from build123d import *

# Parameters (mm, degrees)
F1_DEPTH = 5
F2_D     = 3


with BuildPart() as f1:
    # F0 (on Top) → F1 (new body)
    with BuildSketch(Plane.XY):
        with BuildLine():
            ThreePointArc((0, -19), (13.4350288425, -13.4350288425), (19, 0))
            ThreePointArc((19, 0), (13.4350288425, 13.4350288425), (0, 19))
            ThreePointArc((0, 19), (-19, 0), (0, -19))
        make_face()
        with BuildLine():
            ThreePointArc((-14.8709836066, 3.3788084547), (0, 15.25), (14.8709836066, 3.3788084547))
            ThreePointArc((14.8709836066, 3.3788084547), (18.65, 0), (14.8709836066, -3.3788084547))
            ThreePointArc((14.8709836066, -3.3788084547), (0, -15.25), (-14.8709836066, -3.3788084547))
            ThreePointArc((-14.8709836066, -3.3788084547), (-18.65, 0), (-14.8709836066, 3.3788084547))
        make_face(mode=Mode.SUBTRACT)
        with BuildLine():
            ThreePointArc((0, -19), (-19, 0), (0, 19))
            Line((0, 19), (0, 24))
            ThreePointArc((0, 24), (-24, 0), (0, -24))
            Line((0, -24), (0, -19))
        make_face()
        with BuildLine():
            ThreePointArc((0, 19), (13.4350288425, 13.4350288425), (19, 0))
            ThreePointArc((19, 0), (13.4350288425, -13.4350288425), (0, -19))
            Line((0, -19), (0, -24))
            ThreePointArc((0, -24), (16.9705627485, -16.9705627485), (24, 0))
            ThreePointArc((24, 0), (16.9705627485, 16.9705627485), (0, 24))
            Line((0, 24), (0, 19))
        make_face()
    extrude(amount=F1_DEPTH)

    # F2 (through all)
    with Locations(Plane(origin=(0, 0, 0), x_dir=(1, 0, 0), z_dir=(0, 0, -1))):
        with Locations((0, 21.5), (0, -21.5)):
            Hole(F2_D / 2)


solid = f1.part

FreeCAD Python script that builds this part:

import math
import FreeCAD as App
import Part
import Sketcher

V = App.Vector

doc = App.newDocument("Part")
params = doc.addObject("Spreadsheet::Sheet", "Params")
for row, (alias, value) in enumerate([
    ("sketch1_radius", "24 mm"),
    ("sketch1_radius2", "3.4 mm"),
    ("sketch1_radius3", "15.25 mm"),
    ("pad1_length", "5 mm"),
    ("sketch2_diameter", "3 mm"),
    ("hole_diameter", "3 mm"),
], start=1):
    params.set(f"A{row}", alias)
    params.set(f"B{row}", "=" + value)
    params.setAlias(f"B{row}", alias)

body = doc.addObject("PartDesign::Body", "Body")

sketch1 = body.newObject("Sketcher::SketchObject", "Sketch")
sketch1.AttachmentSupport = (doc.getObject("XY_Plane"), [""])
sketch1.MapMode = "FlatFace"
sketch1.addGeometry(Part.ArcOfCircle(Part.Circle(V(0, 0, 0), V(0, 0, 1), 24), math.radians(90), math.radians(270)), False)
sketch1.addGeometry(Part.ArcOfCircle(Part.Circle(V(0, 0, 0), V(0, 0, 1), 24), math.radians(-90), math.radians(0)), False)
sketch1.addGeometry(Part.ArcOfCircle(Part.Circle(V(0, 0, 0), V(0, 0, 1), 24), math.radians(0), math.radians(90)), False)
sketch1.addGeometry(Part.ArcOfCircle(Part.Circle(V(-15.2, 0, 0), V(0, 0, 1), 3.4), math.radians(84), math.radians(276)), False)
sketch1.addGeometry(Part.ArcOfCircle(Part.Circle(V(0, 0, 0), V(0, 0, 1), 15.2), math.radians(13), math.radians(167)), False)
sketch1.addGeometry(Part.ArcOfCircle(Part.Circle(V(15.2, 0, 0), V(0, 0, 1), 3.4), math.radians(-96), math.radians(96)), False)
sketch1.addGeometry(Part.ArcOfCircle(Part.Circle(V(0, 0, 0), V(0, 0, 1), 15.2), math.radians(-167), math.radians(-13)), False)
sketch1.addConstraint(Sketcher.Constraint("Tangent", 0, 2, 1, 1))
sketch1.addConstraint(Sketcher.Constraint("Tangent", 1, 2, 2, 1))
sketch1.addConstraint(Sketcher.Constraint("Tangent", 2, 2, 0, 1))
sketch1.addConstraint(Sketcher.Constraint("Coincident", 3, 1, 4, 2))
sketch1.addConstraint(Sketcher.Constraint("Coincident", 4, 1, 5, 2))
sketch1.addConstraint(Sketcher.Constraint("Coincident", 5, 1, 6, 2))
sketch1.addConstraint(Sketcher.Constraint("Coincident", 6, 1, 3, 2))
sketch1.addConstraint(Sketcher.Constraint("Coincident", 0, 3, -1, 1))
sketch1.addConstraint(Sketcher.Constraint("Coincident", 4, 3, -1, 1))
sketch1.addConstraint(Sketcher.Constraint("Coincident", 6, 3, -1, 1))
sketch1.addConstraint(Sketcher.Constraint("Equal", 3, 5))
sketch1.addConstraint(Sketcher.Constraint("Equal", 4, 6))
sketch1.addConstraint(Sketcher.Constraint("Symmetric", 3, 3, 5, 3, -1, 1))
sketch1.addConstraint(Sketcher.Constraint("PointOnObject", 3, 3, -1))
sketch1.addConstraint(Sketcher.Constraint("PointOnObject", 0, 2, -2))
sketch1.addConstraint(Sketcher.Constraint("PointOnObject", 1, 2, -1))
sketch1.addConstraint(Sketcher.Constraint("PointOnObject", 2, 2, -2))
sketch1.addConstraint(Sketcher.Constraint("Radius", 0, 24.0))
sketch1.addConstraint(Sketcher.Constraint("Radius", 3, 3.4))
sketch1.addConstraint(Sketcher.Constraint("Radius", 4, 15.25))
sketch1.addConstraint(Sketcher.Constraint("DistanceX", 3, 3, 5, 3, 30.5))
sketch1.setExpression("Constraints[17]", "Params.sketch1_radius")
sketch1.setExpression("Constraints[18]", "Params.sketch1_radius2")
sketch1.setExpression("Constraints[19]", "Params.sketch1_radius3")
pad1 = body.newObject("PartDesign::Pad", "Pad")
pad1.Profile = sketch1
pad1.setExpression("Length", "Params.pad1_length")

sketch2 = body.newObject("Sketcher::SketchObject", "Sketch001")
sketch2.AttachmentSupport = (doc.getObject("XY_Plane"), [""])
sketch2.MapMode = "FlatFace"
sketch2.addGeometry(Part.Circle(V(0, -21.5, 0), V(0, 0, 1), 1.5), False)
sketch2.addGeometry(Part.Circle(V(0, 21.5, 0), V(0, 0, 1), 1.5), False)
sketch2.addConstraint(Sketcher.Constraint("Equal", 0, 1))
sketch2.addConstraint(Sketcher.Constraint("Symmetric", 0, 3, 1, 3, -1, 1))
sketch2.addConstraint(Sketcher.Constraint("PointOnObject", 0, 3, -2))
sketch2.addConstraint(Sketcher.Constraint("Diameter", 0, 3.0))
sketch2.addConstraint(Sketcher.Constraint("DistanceY", 0, 3, 1, 3, 43.0))
sketch2.setExpression("Constraints[3]", "Params.sketch2_diameter")
doc.recompute()
hole = body.newObject("PartDesign::Hole", "Hole")
hole.Profile = sketch2
hole.ThreadType = "None"
hole.setExpression("Diameter", "Params.hole_diameter")
hole.DepthType = "ThroughAll"
hole.Reversed = True

doc.recompute()
